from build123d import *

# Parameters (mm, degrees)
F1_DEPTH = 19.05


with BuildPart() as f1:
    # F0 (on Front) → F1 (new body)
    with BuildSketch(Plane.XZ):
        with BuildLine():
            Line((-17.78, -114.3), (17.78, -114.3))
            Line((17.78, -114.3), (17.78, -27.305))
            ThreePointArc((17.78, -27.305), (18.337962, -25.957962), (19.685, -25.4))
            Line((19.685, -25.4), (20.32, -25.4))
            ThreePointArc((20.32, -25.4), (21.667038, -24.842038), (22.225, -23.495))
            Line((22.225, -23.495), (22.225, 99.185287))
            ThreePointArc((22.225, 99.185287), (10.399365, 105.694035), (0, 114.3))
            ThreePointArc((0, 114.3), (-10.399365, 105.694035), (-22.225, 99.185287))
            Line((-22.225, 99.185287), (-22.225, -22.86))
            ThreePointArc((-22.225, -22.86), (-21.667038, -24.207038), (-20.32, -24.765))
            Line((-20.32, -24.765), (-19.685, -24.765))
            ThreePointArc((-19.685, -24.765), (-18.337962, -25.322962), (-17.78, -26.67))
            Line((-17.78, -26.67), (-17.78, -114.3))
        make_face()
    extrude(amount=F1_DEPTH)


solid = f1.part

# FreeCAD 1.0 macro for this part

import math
import FreeCAD as App
import Part
import Sketcher

V = App.Vector
Q = App.Units.Quantity

doc = App.newDocument("Part")
body = doc.addObject("PartDesign::Body", "Body")

sketch1 = body.newObject("Sketcher::SketchObject", "Sketch")
sketch1.AttachmentSupport = (doc.getObject("XZ_Plane"), [""])
sketch1.MapMode = "FlatFace"
sketch1.addGeometry([
    Part.LineSegment(V(-17.8, -114.3, 0), V(17.8, -114.3, 0)),
    Part.LineSegment(V(17.8, -114.3, 0), V(17.8, -27.3, 0)),
    Part.ArcOfCircle(Part.Circle(V(19.7, -27.3, 0), V(0, 0, 1), 1.9), math.radians(90), math.radians(180)),
    Part.LineSegment(V(19.7, -25.4, 0), V(20.3, -25.4, 0)),
    Part.ArcOfCircle(Part.Circle(V(20.3, -23.5, 0), V(0, 0, 1), 1.9), math.radians(-90), math.radians(0)),
    Part.LineSegment(V(22.2, -23.5, 0), V(22.2, 99.2, 0)),
    Part.ArcOfCircle(Part.Circle(V(50.8, 165.1, 0), V(0, 0, 1), 71.8), math.radians(-135), math.radians(-113)),
    Part.ArcOfCircle(Part.Circle(V(-50.8, 165.1, 0), V(0, 0, 1), 71.8), math.radians(-67), math.radians(-45)),
    Part.LineSegment(V(-22.2, 99.2, 0), V(-22.2, -22.9, 0)),
    Part.ArcOfCircle(Part.Circle(V(-20.3, -22.9, 0), V(0, 0, 1), 1.9), math.radians(-180), math.radians(-90)),
    Part.LineSegment(V(-20.3, -24.8, 0), V(-19.7, -24.8, 0)),
    Part.ArcOfCircle(Part.Circle(V(-19.7, -26.7, 0), V(0, 0, 1), 1.9), math.radians(0), math.radians(90)),
    Part.LineSegment(V(-17.8, -26.7, 0), V(-17.8, -114.3, 0)),
], False)
sketch1.addConstraint([
    Sketcher.Constraint("Coincident", 0, 2, 1, 1),
    Sketcher.Constraint("Tangent", 1, 2, 2, 2),
    Sketcher.Constraint("Tangent", 2, 1, 3, 1),
    Sketcher.Constraint("Tangent", 3, 2, 4, 1),
    Sketcher.Constraint("Tangent", 4, 2, 5, 1),
    Sketcher.Constraint("Coincident", 5, 2, 6, 2),
    Sketcher.Constraint("Coincident", 6, 1, 7, 2),
    Sketcher.Constraint("Coincident", 7, 1, 8, 1),
    Sketcher.Constraint("Tangent", 8, 2, 9, 1),
    Sketcher.Constraint("Tangent", 9, 2, 10, 1),
    Sketcher.Constraint("Tangent", 10, 2, 11, 2),
    Sketcher.Constraint("Tangent", 11, 1, 12, 1),
    Sketcher.Constraint("Coincident", 12, 2, 0, 1),
    Sketcher.Constraint("Horizontal", 0),
    Sketcher.Constraint("Vertical", 1),
    Sketcher.Constraint("Horizontal", 3),
    Sketcher.Constraint("Vertical", 5),
    Sketcher.Constraint("Vertical", 8),
    Sketcher.Constraint("Horizontal", 10),
    Sketcher.Constraint("Vertical", 12),
    Sketcher.Constraint("Equal", 2, 4),
    Sketcher.Constraint("Equal", 6, 7),
    Sketcher.Constraint("Equal", 4, 9),
    Sketcher.Constraint("Equal", 9, 11),
    Sketcher.Constraint("Symmetric", 6, 3, 7, 3, -2),
    Sketcher.Constraint("Horizontal", 5, 2, 7, 1),
    Sketcher.Constraint("Equal", 3, 10),
    Sketcher.Constraint("DistanceX", 0, 1, 0, 2, Q("1.4 in")),
    Sketcher.Constraint("DistanceX", -1, 1, 6, 3, Q("2.0000002 in")),
    Sketcher.Constraint("DistanceY", 2, 1, -1, 1, Q("1 in")),
    Sketcher.Constraint("Radius", 2, Q("0.0750001 in")),
    Sketcher.Constraint("DistanceY", 12, 2, 12, 1, Q("3.45 in")),
    Sketcher.Constraint("DistanceX", -1, 1, 4, 3, Q("0.7999999 in")),
    Sketcher.Constraint("DistanceY", 9, 3, -1, 1, Q("0.8999999 in")),
    Sketcher.Constraint("DistanceY", -1, 1, 6, 1, Q("4.5 in")),
    Sketcher.Constraint("Radius", 6, 71.842057),
])
pad1 = body.newObject("PartDesign::Pad", "Pad")
pad1.Profile = sketch1
pad1.Length = Q("0.75 in")

doc.recompute()
